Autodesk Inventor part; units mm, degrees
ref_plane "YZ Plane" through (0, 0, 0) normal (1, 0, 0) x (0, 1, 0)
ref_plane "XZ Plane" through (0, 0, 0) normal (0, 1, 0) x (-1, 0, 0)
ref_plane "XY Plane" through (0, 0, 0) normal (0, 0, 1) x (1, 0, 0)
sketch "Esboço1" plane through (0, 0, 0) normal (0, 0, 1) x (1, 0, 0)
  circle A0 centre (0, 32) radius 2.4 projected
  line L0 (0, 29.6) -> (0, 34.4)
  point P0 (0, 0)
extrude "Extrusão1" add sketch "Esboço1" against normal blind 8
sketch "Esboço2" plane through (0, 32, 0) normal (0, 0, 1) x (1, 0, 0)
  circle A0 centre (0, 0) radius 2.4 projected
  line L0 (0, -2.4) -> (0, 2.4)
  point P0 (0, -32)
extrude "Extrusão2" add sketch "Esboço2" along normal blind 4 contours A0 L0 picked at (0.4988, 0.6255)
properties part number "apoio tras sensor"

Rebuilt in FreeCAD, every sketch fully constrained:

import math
import FreeCAD as App
import Part
import Sketcher

doc = App.newDocument("Part")
params = doc.addObject("Spreadsheet::Sheet", "Params")
for row, (alias, value) in enumerate([
    ("sketch1_diameter", "4.8 mm"),
    ("pad1_length", "8 mm"),
    ("sketch2_radius", "2.4 mm"),
    ("pad2_length", "4 mm"),
], start=1):
    params.set(f"A{row}", alias)
    params.set(f"B{row}", "=" + value)
    params.setAlias(f"B{row}", alias)

body = doc.addObject("PartDesign::Body", "Body")

# Sketch on XY plane
sketch1 = body.newObject("Sketcher::SketchObject", "Sketch")
sketch1.AttachmentSupport = (doc.getObject("XY_Plane"), [""])
sketch1.MapMode = "FlatFace"
sketch1.addGeometry(Part.Circle(App.Vector(0, 32, 0), App.Vector(0, 0, 1), 2.4), False)
sketch1.addConstraint(Sketcher.Constraint("PointOnObject", 0, 3, -2))
sketch1.addConstraint(Sketcher.Constraint("Diameter", 0, 4.8))
sketch1.addConstraint(Sketcher.Constraint("DistanceY", -1, 1, 0, 3, 32.0))
sketch1.setExpression("Constraints[1]", "Params.sketch1_diameter")
pad1 = body.newObject("PartDesign::Pad", "Pad")
pad1.Profile = sketch1
pad1.setExpression("Length", "Params.pad1_length")
pad1.Reversed = True

# Sketch on XY plane
sketch2 = body.newObject("Sketcher::SketchObject", "Sketch001")
sketch2.AttachmentSupport = (doc.getObject("XY_Plane"), [""])
sketch2.MapMode = "FlatFace"
sketch2.addGeometry(Part.ArcOfCircle(Part.Circle(App.Vector(0, 32, 0), App.Vector(0, 0, 1), 2.4), math.radians(-90), math.radians(90)), False)
sketch2.addGeometry(Part.LineSegment(App.Vector(0, 34.4, 0), App.Vector(0, 29.6, 0)), False)
sketch2.addConstraint(Sketcher.Constraint("Coincident", 0, 1, 1, 2))
sketch2.addConstraint(Sketcher.Constraint("Coincident", 1, 1, 0, 2))
sketch2.addConstraint(Sketcher.Constraint("Vertical", 1))
sketch2.addConstraint(Sketcher.Constraint("PointOnObject", 0, 3, -2))
sketch2.addConstraint(Sketcher.Constraint("PointOnObject", 0, 1, -2))
sketch2.addConstraint(Sketcher.Constraint("Radius", 0, 2.4))
sketch2.addConstraint(Sketcher.Constraint("DistanceY", -1, 1, 0, 3, 32.0))
sketch2.setExpression("Constraints[5]", "Params.sketch2_radius")
pad2 = body.newObject("PartDesign::Pad", "Pad001")
pad2.Profile = sketch2
pad2.setExpression("Length", "Params.pad2_length")

doc.recompute()
